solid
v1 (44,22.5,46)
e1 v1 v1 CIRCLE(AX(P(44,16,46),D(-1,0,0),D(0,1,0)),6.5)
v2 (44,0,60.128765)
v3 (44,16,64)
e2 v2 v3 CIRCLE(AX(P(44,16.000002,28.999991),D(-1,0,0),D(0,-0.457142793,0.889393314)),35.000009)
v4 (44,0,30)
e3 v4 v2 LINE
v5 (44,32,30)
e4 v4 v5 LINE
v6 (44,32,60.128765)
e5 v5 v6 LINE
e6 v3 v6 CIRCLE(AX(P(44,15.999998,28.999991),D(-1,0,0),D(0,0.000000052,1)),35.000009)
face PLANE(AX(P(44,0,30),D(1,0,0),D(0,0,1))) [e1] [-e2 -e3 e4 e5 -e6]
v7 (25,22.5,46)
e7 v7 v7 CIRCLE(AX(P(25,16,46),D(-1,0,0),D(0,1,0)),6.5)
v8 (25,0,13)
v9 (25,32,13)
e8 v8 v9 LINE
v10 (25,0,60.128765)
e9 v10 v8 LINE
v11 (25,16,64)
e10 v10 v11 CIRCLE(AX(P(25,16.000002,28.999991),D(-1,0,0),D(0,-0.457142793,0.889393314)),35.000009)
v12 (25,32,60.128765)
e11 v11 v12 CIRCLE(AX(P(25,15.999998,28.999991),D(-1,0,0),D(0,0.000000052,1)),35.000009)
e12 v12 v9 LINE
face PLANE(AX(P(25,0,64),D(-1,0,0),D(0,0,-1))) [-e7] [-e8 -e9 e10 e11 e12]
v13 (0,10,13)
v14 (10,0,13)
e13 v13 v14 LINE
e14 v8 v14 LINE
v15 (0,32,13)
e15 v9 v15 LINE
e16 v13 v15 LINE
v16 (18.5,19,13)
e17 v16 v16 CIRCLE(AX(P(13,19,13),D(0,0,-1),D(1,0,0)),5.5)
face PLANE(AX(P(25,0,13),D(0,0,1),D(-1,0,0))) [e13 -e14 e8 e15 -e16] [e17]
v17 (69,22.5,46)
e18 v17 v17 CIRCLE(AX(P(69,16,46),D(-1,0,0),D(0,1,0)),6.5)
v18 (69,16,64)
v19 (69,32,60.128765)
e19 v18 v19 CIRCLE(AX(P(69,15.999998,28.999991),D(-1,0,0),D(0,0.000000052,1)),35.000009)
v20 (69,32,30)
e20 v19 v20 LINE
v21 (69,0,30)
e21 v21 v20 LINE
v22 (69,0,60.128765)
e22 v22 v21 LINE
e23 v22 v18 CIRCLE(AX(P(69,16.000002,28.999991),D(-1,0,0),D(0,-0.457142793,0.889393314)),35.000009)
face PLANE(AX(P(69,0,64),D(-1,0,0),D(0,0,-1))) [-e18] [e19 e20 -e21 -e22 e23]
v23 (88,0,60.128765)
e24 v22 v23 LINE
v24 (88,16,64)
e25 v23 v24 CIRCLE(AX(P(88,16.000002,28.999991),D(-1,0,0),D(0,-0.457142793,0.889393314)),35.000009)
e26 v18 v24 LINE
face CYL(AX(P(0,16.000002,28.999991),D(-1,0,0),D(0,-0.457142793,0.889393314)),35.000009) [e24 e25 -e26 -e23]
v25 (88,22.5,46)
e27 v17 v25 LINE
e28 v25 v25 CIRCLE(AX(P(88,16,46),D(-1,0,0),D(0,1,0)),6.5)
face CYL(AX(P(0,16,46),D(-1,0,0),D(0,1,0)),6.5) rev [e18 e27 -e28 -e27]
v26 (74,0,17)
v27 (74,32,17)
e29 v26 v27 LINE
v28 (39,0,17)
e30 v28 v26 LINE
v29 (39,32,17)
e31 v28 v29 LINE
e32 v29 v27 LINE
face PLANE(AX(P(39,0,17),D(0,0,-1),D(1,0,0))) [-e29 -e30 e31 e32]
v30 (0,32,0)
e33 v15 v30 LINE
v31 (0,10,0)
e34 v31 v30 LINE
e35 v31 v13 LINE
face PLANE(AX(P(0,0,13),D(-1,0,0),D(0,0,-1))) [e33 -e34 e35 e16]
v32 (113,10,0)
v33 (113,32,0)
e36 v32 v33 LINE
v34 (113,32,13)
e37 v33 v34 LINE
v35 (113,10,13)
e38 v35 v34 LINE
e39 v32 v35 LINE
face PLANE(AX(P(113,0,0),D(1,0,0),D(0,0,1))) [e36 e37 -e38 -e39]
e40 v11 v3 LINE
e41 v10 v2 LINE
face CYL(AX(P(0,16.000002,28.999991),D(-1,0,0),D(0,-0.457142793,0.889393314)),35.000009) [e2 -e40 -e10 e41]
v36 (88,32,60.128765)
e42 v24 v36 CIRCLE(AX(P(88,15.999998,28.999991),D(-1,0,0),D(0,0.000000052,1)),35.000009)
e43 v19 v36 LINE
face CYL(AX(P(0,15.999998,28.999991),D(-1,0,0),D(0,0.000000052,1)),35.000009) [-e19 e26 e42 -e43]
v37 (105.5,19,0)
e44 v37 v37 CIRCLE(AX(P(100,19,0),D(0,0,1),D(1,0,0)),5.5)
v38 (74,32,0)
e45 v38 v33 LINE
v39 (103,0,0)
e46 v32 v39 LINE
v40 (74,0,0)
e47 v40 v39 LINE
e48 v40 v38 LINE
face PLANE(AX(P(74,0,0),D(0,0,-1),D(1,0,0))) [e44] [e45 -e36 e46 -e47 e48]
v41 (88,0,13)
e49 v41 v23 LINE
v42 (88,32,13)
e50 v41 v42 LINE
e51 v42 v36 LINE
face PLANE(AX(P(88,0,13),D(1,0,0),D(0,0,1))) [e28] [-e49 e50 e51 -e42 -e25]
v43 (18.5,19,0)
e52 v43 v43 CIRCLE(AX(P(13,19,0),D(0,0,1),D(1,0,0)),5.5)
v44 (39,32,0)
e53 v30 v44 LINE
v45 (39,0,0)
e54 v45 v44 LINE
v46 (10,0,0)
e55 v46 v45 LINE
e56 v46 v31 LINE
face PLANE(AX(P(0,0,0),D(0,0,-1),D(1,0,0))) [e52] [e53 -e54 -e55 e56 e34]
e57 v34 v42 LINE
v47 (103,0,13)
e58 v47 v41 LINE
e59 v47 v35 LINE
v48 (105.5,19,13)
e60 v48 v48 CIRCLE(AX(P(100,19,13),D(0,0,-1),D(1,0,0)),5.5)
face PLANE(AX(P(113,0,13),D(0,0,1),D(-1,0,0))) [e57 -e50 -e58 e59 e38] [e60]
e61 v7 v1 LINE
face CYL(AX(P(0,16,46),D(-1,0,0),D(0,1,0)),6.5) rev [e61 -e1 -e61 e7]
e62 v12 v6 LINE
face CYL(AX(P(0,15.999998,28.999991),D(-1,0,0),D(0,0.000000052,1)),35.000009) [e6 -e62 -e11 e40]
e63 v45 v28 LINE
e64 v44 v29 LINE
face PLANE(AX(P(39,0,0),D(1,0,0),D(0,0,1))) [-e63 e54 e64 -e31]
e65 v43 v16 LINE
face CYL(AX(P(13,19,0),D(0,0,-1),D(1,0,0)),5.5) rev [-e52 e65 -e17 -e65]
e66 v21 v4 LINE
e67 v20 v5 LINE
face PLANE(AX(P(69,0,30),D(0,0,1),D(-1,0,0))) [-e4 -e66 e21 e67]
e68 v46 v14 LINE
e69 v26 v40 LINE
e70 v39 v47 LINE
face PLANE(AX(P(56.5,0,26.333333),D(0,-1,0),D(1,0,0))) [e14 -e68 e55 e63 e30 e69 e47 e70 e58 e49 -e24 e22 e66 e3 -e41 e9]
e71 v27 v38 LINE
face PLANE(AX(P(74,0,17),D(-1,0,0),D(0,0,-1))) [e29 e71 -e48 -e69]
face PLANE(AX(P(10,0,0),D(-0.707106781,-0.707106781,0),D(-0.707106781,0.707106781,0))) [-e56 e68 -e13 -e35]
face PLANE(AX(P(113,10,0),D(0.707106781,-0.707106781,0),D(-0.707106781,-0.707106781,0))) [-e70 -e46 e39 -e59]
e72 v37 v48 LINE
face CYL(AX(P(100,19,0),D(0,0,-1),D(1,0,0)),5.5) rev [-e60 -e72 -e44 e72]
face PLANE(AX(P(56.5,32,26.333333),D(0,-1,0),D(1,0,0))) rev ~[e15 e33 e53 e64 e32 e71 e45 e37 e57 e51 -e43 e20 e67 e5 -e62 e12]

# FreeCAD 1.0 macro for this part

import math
import FreeCAD as App
import Part
import Sketcher
from FreeCAD import Vector
Q = App.Units.Quantity

doc = App.newDocument("Part")
params = doc.addObject("Spreadsheet::Sheet", "Params")
for row, (alias, value) in enumerate([
    ("sketch1_width", "39 mm"),
    ("sketch1_width2", "35 mm"),
    ("sketch1_width3", "25 mm"),
    ("sketch1_height", "13 mm"),
    ("sketch1_height2", "17 mm"),
    ("pad1_length", "32 mm"),
    ("sketch2_diameter", "13 mm"),
    ("sketch2_width", "16 mm"),
    ("sketch3_diameter", "11 mm"),
    ("sketch3_width", "10 mm"),
], start=1):
    params.set(f"A{row}", alias)
    params.set(f"B{row}", "=" + value)
    params.setAlias(f"B{row}", alias)

body = doc.addObject("PartDesign::Body", "Body")

# Sketch on XZ plane
sketch1 = doc.addObject("Sketcher::SketchObject", "Sketch")
body.addObject(sketch1)
sketch1.AttachmentSupport = (doc.XZ_Plane, [""])
sketch1.MapMode = "FlatFace"
sketch1.addGeometry([
    Part.LineSegment(Vector(0, 13, 0), Vector(0, 0, 0)),  # 0
    Part.LineSegment(Vector(0, 0, 0), Vector(39, 0, 0)),  # 1
    Part.LineSegment(Vector(39, 0, 0), Vector(39, 17, 0)),  # 2
    Part.LineSegment(Vector(39, 17, 0), Vector(74, 17, 0)),  # 3
    Part.LineSegment(Vector(74, 17, 0), Vector(74, 0, 0)),  # 4
    Part.LineSegment(Vector(74, 0, 0), Vector(113, 0, 0)),  # 5
    Part.LineSegment(Vector(113, 0, 0), Vector(113, 13, 0)),  # 6
    Part.LineSegment(Vector(113, 13, 0), Vector(88, 13, 0)),  # 7
    Part.LineSegment(Vector(88, 13, 0), Vector(88, 64, 0)),  # 8
    Part.LineSegment(Vector(88, 64, 0), Vector(69, 64, 0)),  # 9
    Part.LineSegment(Vector(69, 64, 0), Vector(69, 30, 0)),  # 10
    Part.LineSegment(Vector(69, 30, 0), Vector(44, 30, 0)),  # 11
    Part.LineSegment(Vector(44, 30, 0), Vector(44, 64, 0)),  # 12
    Part.LineSegment(Vector(44, 64, 0), Vector(25, 64, 0)),  # 13
    Part.LineSegment(Vector(25, 64, 0), Vector(25, 13, 0)),  # 14
    Part.LineSegment(Vector(25, 13, 0), Vector(0, 13, 0)),  # 15
], False)
sketch1.addConstraint([
    Sketcher.Constraint("Coincident", 0, 2, 1, 1),
    Sketcher.Constraint("Coincident", 1, 2, 2, 1),
    Sketcher.Constraint("Coincident", 2, 2, 3, 1),
    Sketcher.Constraint("Coincident", 3, 2, 4, 1),
    Sketcher.Constraint("Coincident", 4, 2, 5, 1),
    Sketcher.Constraint("Coincident", 5, 2, 6, 1),
    Sketcher.Constraint("Coincident", 6, 2, 7, 1),
    Sketcher.Constraint("Coincident", 7, 2, 8, 1),
    Sketcher.Constraint("Coincident", 8, 2, 9, 1),
    Sketcher.Constraint("Coincident", 9, 2, 10, 1),
    Sketcher.Constraint("Coincident", 10, 2, 11, 1),
    Sketcher.Constraint("Coincident", 11, 2, 12, 1),
    Sketcher.Constraint("Coincident", 12, 2, 13, 1),
    Sketcher.Constraint("Coincident", 13, 2, 14, 1),
    Sketcher.Constraint("Coincident", 14, 2, 15, 1),
    Sketcher.Constraint("Coincident", 15, 2, 0, 1),
    Sketcher.Constraint("Vertical", 0),
    Sketcher.Constraint("Horizontal", 1),
    Sketcher.Constraint("Vertical", 2),
    Sketcher.Constraint("Horizontal", 3),
    Sketcher.Constraint("Vertical", 4),
    Sketcher.Constraint("Horizontal", 5),
    Sketcher.Constraint("Vertical", 6),
    Sketcher.Constraint("Horizontal", 7),
    Sketcher.Constraint("Vertical", 8),
    Sketcher.Constraint("Horizontal", 9),
    Sketcher.Constraint("Vertical", 10),
    Sketcher.Constraint("Horizontal", 11),
    Sketcher.Constraint("Vertical", 12),
    Sketcher.Constraint("Horizontal", 13),
    Sketcher.Constraint("Vertical", 14),
    Sketcher.Constraint("Horizontal", 15),
    Sketcher.Constraint("Coincident", 0, 2, -1, 1),
    Sketcher.Constraint("PointOnObject", 4, 2, -1),
    Sketcher.Constraint("Horizontal", 9, 2, 12, 2),
    Sketcher.Constraint("Horizontal", 7, 2, 14, 2),
    Sketcher.Constraint("Equal", 1, 5),
    Sketcher.Constraint("Equal", 7, 11),
    Sketcher.Constraint("Equal", 9, 13),
    Sketcher.Constraint("Equal", 11, 15),
    Sketcher.Constraint("DistanceX", 1, 1, 1, 2, Q("39 mm")),
    Sketcher.Constraint("DistanceX", 3, 1, 3, 2, Q("35 mm")),
    Sketcher.Constraint("DistanceX", 7, 2, 7, 1, Q("25 mm")),
    Sketcher.Constraint("DistanceY", 0, 2, 0, 1, Q("13 mm")),
    Sketcher.Constraint("DistanceY", 2, 1, 2, 2, Q("17 mm")),
    Sketcher.Constraint("DistanceY", 8, 1, 8, 2, Q("51 mm")),
    Sketcher.Constraint("DistanceY", 10, 2, 10, 1, Q("34 mm")),
])
sketch1.setExpression("Constraints[40]", "Params.sketch1_width")
sketch1.setExpression("Constraints[41]", "Params.sketch1_width2")
sketch1.setExpression("Constraints[42]", "Params.sketch1_width3")
sketch1.setExpression("Constraints[43]", "Params.sketch1_height")
sketch1.setExpression("Constraints[44]", "Params.sketch1_height2")
pad1 = doc.addObject("PartDesign::Pad", "Pad")
body.addObject(pad1)
pad1.Profile = sketch1
pad1.setExpression("Length", "Params.pad1_length")
pad1.Reversed = True

# Sketch on YZ plane
sketch2 = doc.addObject("Sketcher::SketchObject", "Sketch001")
body.addObject(sketch2)
sketch2.AttachmentSupport = (doc.YZ_Plane, [""])
sketch2.MapMode = "FlatFace"
sketch2.addGeometry([
    Part.ArcOfCircle(Part.Circle(Vector(16, 29, 0), Vector(0, 0, 1), 35), math.radians(90), math.radians(117)),  # 0
    Part.LineSegment(Vector(16, 64, 0), Vector(0, 64, 0)),  # 1
    Part.LineSegment(Vector(0, 64, 0), Vector(0, 60.1, 0)),  # 2
    Part.ArcOfCircle(Part.Circle(Vector(16, 29, 0), Vector(0, 0, 1), 35), math.radians(63), math.radians(90)),  # 3
    Part.LineSegment(Vector(32, 60.1, 0), Vector(32, 64, 0)),  # 4
    Part.LineSegment(Vector(32, 64, 0), Vector(16, 64, 0)),  # 5
    Part.Circle(Vector(16, 46, 0), Vector(0, 0, 1), 6.5),  # 6
], False)
sketch2.addConstraint([
    Sketcher.Constraint("Tangent", 0, 1, 1, 1),
    Sketcher.Constraint("Coincident", 1, 2, 2, 1),
    Sketcher.Constraint("Coincident", 2, 2, 0, 2),
    Sketcher.Constraint("Coincident", 3, 1, 4, 1),
    Sketcher.Constraint("Coincident", 4, 2, 5, 1),
    Sketcher.Constraint("Tangent", 5, 2, 3, 2),
    Sketcher.Constraint("Horizontal", 1),
    Sketcher.Constraint("Vertical", 2),
    Sketcher.Constraint("Vertical", 4),
    Sketcher.Constraint("Horizontal", 5),
    Sketcher.Constraint("Coincident", 3, 3, 0, 3),
    Sketcher.Constraint("Equal", 0, 3),
    Sketcher.Constraint("PointOnObject", 1, 2, -2),
    Sketcher.Constraint("Horizontal", 2, 2, 3, 1),
    Sketcher.Constraint("Vertical", 3, 3, 6, 3),
    Sketcher.Constraint("Diameter", 6, Q("13 mm")),
    Sketcher.Constraint("DistanceX", 1, 2, 1, 1, Q("16 mm")),
    Sketcher.Constraint("DistanceY", -1, 1, 6, 3, Q("46 mm")),
    Sketcher.Constraint("DistanceY", -1, 1, 0, 1, Q("64 mm")),
    Sketcher.Constraint("Radius", 0, Q("35.000009 mm")),
])
sketch2.setExpression("Constraints[15]", "Params.sketch2_diameter")
sketch2.setExpression("Constraints[16]", "Params.sketch2_width")
pocket1 = doc.addObject("PartDesign::Pocket", "Pocket")
body.addObject(pocket1)
pocket1.Profile = sketch2
pocket1.Type = "ThroughAll"
pocket1.Reversed = True

# Sketch on XY plane
sketch3 = doc.addObject("Sketcher::SketchObject", "Sketch002")
body.addObject(sketch3)
sketch3.AttachmentSupport = (doc.XY_Plane, [""])
sketch3.MapMode = "FlatFace"
sketch3.addGeometry([
    Part.LineSegment(Vector(0, 10, 0), Vector(0, 0, 0)),  # 0
    Part.LineSegment(Vector(0, 0, 0), Vector(10, 0, 0)),  # 1
    Part.LineSegment(Vector(10, 0, 0), Vector(0, 10, 0)),  # 2
    Part.LineSegment(Vector(103, 0, 0), Vector(113, 0, 0)),  # 3
    Part.LineSegment(Vector(113, 0, 0), Vector(113, 10, 0)),  # 4
    Part.LineSegment(Vector(113, 10, 0), Vector(103, 0, 0)),  # 5
    Part.Circle(Vector(100, 19, 0), Vector(0, 0, 1), 6),  # 6
    Part.Circle(Vector(13, 19, 0), Vector(0, 0, 1), 6),  # 7
], False)
sketch3.addConstraint([
    Sketcher.Constraint("Coincident", 0, 2, 1, 1),
    Sketcher.Constraint("Coincident", 1, 2, 2, 1),
    Sketcher.Constraint("Coincident", 2, 2, 0, 1),
    Sketcher.Constraint("Coincident", 3, 2, 4, 1),
    Sketcher.Constraint("Coincident", 4, 2, 5, 1),
    Sketcher.Constraint("Coincident", 5, 2, 3, 1),
    Sketcher.Constraint("Vertical", 0),
    Sketcher.Constraint("Horizontal", 1),
    Sketcher.Constraint("Horizontal", 3),
    Sketcher.Constraint("Vertical", 4),
    Sketcher.Constraint("Coincident", 0, 2, -1, 1),
    Sketcher.Constraint("Equal", 6, 7),
    Sketcher.Constraint("PointOnObject", 3, 2, -1),
    Sketcher.Constraint("Perpendicular", 2, 5),
    Sketcher.Constraint("Horizontal", 6, 3, 7, 3),
    Sketcher.Constraint("Horizontal", 2, 2, 4, 2),
    Sketcher.Constraint("Equal", 1, 3),
    Sketcher.Constraint("Diameter", 6, Q("11 mm")),
    Sketcher.Constraint("DistanceX", 1, 1, 1, 2, Q("10 mm")),
    Sketcher.Constraint("DistanceX", -1, 1, 6, 3, Q("100 mm")),
    Sketcher.Constraint("DistanceY", -1, 1, 6, 3, Q("19 mm")),
    Sketcher.Constraint("DistanceX", -1, 1, 7, 3, Q("13 mm")),
    Sketcher.Constraint("DistanceX", -1, 1, 3, 2, Q("113 mm")),
])
sketch3.setExpression("Constraints[17]", "Params.sketch3_diameter")
sketch3.setExpression("Constraints[18]", "Params.sketch3_width")
pocket2 = doc.addObject("PartDesign::Pocket", "Pocket001")
body.addObject(pocket2)
pocket2.Profile = sketch3
pocket2.Type = "ThroughAll"
pocket2.Reversed = True

doc.recompute()
